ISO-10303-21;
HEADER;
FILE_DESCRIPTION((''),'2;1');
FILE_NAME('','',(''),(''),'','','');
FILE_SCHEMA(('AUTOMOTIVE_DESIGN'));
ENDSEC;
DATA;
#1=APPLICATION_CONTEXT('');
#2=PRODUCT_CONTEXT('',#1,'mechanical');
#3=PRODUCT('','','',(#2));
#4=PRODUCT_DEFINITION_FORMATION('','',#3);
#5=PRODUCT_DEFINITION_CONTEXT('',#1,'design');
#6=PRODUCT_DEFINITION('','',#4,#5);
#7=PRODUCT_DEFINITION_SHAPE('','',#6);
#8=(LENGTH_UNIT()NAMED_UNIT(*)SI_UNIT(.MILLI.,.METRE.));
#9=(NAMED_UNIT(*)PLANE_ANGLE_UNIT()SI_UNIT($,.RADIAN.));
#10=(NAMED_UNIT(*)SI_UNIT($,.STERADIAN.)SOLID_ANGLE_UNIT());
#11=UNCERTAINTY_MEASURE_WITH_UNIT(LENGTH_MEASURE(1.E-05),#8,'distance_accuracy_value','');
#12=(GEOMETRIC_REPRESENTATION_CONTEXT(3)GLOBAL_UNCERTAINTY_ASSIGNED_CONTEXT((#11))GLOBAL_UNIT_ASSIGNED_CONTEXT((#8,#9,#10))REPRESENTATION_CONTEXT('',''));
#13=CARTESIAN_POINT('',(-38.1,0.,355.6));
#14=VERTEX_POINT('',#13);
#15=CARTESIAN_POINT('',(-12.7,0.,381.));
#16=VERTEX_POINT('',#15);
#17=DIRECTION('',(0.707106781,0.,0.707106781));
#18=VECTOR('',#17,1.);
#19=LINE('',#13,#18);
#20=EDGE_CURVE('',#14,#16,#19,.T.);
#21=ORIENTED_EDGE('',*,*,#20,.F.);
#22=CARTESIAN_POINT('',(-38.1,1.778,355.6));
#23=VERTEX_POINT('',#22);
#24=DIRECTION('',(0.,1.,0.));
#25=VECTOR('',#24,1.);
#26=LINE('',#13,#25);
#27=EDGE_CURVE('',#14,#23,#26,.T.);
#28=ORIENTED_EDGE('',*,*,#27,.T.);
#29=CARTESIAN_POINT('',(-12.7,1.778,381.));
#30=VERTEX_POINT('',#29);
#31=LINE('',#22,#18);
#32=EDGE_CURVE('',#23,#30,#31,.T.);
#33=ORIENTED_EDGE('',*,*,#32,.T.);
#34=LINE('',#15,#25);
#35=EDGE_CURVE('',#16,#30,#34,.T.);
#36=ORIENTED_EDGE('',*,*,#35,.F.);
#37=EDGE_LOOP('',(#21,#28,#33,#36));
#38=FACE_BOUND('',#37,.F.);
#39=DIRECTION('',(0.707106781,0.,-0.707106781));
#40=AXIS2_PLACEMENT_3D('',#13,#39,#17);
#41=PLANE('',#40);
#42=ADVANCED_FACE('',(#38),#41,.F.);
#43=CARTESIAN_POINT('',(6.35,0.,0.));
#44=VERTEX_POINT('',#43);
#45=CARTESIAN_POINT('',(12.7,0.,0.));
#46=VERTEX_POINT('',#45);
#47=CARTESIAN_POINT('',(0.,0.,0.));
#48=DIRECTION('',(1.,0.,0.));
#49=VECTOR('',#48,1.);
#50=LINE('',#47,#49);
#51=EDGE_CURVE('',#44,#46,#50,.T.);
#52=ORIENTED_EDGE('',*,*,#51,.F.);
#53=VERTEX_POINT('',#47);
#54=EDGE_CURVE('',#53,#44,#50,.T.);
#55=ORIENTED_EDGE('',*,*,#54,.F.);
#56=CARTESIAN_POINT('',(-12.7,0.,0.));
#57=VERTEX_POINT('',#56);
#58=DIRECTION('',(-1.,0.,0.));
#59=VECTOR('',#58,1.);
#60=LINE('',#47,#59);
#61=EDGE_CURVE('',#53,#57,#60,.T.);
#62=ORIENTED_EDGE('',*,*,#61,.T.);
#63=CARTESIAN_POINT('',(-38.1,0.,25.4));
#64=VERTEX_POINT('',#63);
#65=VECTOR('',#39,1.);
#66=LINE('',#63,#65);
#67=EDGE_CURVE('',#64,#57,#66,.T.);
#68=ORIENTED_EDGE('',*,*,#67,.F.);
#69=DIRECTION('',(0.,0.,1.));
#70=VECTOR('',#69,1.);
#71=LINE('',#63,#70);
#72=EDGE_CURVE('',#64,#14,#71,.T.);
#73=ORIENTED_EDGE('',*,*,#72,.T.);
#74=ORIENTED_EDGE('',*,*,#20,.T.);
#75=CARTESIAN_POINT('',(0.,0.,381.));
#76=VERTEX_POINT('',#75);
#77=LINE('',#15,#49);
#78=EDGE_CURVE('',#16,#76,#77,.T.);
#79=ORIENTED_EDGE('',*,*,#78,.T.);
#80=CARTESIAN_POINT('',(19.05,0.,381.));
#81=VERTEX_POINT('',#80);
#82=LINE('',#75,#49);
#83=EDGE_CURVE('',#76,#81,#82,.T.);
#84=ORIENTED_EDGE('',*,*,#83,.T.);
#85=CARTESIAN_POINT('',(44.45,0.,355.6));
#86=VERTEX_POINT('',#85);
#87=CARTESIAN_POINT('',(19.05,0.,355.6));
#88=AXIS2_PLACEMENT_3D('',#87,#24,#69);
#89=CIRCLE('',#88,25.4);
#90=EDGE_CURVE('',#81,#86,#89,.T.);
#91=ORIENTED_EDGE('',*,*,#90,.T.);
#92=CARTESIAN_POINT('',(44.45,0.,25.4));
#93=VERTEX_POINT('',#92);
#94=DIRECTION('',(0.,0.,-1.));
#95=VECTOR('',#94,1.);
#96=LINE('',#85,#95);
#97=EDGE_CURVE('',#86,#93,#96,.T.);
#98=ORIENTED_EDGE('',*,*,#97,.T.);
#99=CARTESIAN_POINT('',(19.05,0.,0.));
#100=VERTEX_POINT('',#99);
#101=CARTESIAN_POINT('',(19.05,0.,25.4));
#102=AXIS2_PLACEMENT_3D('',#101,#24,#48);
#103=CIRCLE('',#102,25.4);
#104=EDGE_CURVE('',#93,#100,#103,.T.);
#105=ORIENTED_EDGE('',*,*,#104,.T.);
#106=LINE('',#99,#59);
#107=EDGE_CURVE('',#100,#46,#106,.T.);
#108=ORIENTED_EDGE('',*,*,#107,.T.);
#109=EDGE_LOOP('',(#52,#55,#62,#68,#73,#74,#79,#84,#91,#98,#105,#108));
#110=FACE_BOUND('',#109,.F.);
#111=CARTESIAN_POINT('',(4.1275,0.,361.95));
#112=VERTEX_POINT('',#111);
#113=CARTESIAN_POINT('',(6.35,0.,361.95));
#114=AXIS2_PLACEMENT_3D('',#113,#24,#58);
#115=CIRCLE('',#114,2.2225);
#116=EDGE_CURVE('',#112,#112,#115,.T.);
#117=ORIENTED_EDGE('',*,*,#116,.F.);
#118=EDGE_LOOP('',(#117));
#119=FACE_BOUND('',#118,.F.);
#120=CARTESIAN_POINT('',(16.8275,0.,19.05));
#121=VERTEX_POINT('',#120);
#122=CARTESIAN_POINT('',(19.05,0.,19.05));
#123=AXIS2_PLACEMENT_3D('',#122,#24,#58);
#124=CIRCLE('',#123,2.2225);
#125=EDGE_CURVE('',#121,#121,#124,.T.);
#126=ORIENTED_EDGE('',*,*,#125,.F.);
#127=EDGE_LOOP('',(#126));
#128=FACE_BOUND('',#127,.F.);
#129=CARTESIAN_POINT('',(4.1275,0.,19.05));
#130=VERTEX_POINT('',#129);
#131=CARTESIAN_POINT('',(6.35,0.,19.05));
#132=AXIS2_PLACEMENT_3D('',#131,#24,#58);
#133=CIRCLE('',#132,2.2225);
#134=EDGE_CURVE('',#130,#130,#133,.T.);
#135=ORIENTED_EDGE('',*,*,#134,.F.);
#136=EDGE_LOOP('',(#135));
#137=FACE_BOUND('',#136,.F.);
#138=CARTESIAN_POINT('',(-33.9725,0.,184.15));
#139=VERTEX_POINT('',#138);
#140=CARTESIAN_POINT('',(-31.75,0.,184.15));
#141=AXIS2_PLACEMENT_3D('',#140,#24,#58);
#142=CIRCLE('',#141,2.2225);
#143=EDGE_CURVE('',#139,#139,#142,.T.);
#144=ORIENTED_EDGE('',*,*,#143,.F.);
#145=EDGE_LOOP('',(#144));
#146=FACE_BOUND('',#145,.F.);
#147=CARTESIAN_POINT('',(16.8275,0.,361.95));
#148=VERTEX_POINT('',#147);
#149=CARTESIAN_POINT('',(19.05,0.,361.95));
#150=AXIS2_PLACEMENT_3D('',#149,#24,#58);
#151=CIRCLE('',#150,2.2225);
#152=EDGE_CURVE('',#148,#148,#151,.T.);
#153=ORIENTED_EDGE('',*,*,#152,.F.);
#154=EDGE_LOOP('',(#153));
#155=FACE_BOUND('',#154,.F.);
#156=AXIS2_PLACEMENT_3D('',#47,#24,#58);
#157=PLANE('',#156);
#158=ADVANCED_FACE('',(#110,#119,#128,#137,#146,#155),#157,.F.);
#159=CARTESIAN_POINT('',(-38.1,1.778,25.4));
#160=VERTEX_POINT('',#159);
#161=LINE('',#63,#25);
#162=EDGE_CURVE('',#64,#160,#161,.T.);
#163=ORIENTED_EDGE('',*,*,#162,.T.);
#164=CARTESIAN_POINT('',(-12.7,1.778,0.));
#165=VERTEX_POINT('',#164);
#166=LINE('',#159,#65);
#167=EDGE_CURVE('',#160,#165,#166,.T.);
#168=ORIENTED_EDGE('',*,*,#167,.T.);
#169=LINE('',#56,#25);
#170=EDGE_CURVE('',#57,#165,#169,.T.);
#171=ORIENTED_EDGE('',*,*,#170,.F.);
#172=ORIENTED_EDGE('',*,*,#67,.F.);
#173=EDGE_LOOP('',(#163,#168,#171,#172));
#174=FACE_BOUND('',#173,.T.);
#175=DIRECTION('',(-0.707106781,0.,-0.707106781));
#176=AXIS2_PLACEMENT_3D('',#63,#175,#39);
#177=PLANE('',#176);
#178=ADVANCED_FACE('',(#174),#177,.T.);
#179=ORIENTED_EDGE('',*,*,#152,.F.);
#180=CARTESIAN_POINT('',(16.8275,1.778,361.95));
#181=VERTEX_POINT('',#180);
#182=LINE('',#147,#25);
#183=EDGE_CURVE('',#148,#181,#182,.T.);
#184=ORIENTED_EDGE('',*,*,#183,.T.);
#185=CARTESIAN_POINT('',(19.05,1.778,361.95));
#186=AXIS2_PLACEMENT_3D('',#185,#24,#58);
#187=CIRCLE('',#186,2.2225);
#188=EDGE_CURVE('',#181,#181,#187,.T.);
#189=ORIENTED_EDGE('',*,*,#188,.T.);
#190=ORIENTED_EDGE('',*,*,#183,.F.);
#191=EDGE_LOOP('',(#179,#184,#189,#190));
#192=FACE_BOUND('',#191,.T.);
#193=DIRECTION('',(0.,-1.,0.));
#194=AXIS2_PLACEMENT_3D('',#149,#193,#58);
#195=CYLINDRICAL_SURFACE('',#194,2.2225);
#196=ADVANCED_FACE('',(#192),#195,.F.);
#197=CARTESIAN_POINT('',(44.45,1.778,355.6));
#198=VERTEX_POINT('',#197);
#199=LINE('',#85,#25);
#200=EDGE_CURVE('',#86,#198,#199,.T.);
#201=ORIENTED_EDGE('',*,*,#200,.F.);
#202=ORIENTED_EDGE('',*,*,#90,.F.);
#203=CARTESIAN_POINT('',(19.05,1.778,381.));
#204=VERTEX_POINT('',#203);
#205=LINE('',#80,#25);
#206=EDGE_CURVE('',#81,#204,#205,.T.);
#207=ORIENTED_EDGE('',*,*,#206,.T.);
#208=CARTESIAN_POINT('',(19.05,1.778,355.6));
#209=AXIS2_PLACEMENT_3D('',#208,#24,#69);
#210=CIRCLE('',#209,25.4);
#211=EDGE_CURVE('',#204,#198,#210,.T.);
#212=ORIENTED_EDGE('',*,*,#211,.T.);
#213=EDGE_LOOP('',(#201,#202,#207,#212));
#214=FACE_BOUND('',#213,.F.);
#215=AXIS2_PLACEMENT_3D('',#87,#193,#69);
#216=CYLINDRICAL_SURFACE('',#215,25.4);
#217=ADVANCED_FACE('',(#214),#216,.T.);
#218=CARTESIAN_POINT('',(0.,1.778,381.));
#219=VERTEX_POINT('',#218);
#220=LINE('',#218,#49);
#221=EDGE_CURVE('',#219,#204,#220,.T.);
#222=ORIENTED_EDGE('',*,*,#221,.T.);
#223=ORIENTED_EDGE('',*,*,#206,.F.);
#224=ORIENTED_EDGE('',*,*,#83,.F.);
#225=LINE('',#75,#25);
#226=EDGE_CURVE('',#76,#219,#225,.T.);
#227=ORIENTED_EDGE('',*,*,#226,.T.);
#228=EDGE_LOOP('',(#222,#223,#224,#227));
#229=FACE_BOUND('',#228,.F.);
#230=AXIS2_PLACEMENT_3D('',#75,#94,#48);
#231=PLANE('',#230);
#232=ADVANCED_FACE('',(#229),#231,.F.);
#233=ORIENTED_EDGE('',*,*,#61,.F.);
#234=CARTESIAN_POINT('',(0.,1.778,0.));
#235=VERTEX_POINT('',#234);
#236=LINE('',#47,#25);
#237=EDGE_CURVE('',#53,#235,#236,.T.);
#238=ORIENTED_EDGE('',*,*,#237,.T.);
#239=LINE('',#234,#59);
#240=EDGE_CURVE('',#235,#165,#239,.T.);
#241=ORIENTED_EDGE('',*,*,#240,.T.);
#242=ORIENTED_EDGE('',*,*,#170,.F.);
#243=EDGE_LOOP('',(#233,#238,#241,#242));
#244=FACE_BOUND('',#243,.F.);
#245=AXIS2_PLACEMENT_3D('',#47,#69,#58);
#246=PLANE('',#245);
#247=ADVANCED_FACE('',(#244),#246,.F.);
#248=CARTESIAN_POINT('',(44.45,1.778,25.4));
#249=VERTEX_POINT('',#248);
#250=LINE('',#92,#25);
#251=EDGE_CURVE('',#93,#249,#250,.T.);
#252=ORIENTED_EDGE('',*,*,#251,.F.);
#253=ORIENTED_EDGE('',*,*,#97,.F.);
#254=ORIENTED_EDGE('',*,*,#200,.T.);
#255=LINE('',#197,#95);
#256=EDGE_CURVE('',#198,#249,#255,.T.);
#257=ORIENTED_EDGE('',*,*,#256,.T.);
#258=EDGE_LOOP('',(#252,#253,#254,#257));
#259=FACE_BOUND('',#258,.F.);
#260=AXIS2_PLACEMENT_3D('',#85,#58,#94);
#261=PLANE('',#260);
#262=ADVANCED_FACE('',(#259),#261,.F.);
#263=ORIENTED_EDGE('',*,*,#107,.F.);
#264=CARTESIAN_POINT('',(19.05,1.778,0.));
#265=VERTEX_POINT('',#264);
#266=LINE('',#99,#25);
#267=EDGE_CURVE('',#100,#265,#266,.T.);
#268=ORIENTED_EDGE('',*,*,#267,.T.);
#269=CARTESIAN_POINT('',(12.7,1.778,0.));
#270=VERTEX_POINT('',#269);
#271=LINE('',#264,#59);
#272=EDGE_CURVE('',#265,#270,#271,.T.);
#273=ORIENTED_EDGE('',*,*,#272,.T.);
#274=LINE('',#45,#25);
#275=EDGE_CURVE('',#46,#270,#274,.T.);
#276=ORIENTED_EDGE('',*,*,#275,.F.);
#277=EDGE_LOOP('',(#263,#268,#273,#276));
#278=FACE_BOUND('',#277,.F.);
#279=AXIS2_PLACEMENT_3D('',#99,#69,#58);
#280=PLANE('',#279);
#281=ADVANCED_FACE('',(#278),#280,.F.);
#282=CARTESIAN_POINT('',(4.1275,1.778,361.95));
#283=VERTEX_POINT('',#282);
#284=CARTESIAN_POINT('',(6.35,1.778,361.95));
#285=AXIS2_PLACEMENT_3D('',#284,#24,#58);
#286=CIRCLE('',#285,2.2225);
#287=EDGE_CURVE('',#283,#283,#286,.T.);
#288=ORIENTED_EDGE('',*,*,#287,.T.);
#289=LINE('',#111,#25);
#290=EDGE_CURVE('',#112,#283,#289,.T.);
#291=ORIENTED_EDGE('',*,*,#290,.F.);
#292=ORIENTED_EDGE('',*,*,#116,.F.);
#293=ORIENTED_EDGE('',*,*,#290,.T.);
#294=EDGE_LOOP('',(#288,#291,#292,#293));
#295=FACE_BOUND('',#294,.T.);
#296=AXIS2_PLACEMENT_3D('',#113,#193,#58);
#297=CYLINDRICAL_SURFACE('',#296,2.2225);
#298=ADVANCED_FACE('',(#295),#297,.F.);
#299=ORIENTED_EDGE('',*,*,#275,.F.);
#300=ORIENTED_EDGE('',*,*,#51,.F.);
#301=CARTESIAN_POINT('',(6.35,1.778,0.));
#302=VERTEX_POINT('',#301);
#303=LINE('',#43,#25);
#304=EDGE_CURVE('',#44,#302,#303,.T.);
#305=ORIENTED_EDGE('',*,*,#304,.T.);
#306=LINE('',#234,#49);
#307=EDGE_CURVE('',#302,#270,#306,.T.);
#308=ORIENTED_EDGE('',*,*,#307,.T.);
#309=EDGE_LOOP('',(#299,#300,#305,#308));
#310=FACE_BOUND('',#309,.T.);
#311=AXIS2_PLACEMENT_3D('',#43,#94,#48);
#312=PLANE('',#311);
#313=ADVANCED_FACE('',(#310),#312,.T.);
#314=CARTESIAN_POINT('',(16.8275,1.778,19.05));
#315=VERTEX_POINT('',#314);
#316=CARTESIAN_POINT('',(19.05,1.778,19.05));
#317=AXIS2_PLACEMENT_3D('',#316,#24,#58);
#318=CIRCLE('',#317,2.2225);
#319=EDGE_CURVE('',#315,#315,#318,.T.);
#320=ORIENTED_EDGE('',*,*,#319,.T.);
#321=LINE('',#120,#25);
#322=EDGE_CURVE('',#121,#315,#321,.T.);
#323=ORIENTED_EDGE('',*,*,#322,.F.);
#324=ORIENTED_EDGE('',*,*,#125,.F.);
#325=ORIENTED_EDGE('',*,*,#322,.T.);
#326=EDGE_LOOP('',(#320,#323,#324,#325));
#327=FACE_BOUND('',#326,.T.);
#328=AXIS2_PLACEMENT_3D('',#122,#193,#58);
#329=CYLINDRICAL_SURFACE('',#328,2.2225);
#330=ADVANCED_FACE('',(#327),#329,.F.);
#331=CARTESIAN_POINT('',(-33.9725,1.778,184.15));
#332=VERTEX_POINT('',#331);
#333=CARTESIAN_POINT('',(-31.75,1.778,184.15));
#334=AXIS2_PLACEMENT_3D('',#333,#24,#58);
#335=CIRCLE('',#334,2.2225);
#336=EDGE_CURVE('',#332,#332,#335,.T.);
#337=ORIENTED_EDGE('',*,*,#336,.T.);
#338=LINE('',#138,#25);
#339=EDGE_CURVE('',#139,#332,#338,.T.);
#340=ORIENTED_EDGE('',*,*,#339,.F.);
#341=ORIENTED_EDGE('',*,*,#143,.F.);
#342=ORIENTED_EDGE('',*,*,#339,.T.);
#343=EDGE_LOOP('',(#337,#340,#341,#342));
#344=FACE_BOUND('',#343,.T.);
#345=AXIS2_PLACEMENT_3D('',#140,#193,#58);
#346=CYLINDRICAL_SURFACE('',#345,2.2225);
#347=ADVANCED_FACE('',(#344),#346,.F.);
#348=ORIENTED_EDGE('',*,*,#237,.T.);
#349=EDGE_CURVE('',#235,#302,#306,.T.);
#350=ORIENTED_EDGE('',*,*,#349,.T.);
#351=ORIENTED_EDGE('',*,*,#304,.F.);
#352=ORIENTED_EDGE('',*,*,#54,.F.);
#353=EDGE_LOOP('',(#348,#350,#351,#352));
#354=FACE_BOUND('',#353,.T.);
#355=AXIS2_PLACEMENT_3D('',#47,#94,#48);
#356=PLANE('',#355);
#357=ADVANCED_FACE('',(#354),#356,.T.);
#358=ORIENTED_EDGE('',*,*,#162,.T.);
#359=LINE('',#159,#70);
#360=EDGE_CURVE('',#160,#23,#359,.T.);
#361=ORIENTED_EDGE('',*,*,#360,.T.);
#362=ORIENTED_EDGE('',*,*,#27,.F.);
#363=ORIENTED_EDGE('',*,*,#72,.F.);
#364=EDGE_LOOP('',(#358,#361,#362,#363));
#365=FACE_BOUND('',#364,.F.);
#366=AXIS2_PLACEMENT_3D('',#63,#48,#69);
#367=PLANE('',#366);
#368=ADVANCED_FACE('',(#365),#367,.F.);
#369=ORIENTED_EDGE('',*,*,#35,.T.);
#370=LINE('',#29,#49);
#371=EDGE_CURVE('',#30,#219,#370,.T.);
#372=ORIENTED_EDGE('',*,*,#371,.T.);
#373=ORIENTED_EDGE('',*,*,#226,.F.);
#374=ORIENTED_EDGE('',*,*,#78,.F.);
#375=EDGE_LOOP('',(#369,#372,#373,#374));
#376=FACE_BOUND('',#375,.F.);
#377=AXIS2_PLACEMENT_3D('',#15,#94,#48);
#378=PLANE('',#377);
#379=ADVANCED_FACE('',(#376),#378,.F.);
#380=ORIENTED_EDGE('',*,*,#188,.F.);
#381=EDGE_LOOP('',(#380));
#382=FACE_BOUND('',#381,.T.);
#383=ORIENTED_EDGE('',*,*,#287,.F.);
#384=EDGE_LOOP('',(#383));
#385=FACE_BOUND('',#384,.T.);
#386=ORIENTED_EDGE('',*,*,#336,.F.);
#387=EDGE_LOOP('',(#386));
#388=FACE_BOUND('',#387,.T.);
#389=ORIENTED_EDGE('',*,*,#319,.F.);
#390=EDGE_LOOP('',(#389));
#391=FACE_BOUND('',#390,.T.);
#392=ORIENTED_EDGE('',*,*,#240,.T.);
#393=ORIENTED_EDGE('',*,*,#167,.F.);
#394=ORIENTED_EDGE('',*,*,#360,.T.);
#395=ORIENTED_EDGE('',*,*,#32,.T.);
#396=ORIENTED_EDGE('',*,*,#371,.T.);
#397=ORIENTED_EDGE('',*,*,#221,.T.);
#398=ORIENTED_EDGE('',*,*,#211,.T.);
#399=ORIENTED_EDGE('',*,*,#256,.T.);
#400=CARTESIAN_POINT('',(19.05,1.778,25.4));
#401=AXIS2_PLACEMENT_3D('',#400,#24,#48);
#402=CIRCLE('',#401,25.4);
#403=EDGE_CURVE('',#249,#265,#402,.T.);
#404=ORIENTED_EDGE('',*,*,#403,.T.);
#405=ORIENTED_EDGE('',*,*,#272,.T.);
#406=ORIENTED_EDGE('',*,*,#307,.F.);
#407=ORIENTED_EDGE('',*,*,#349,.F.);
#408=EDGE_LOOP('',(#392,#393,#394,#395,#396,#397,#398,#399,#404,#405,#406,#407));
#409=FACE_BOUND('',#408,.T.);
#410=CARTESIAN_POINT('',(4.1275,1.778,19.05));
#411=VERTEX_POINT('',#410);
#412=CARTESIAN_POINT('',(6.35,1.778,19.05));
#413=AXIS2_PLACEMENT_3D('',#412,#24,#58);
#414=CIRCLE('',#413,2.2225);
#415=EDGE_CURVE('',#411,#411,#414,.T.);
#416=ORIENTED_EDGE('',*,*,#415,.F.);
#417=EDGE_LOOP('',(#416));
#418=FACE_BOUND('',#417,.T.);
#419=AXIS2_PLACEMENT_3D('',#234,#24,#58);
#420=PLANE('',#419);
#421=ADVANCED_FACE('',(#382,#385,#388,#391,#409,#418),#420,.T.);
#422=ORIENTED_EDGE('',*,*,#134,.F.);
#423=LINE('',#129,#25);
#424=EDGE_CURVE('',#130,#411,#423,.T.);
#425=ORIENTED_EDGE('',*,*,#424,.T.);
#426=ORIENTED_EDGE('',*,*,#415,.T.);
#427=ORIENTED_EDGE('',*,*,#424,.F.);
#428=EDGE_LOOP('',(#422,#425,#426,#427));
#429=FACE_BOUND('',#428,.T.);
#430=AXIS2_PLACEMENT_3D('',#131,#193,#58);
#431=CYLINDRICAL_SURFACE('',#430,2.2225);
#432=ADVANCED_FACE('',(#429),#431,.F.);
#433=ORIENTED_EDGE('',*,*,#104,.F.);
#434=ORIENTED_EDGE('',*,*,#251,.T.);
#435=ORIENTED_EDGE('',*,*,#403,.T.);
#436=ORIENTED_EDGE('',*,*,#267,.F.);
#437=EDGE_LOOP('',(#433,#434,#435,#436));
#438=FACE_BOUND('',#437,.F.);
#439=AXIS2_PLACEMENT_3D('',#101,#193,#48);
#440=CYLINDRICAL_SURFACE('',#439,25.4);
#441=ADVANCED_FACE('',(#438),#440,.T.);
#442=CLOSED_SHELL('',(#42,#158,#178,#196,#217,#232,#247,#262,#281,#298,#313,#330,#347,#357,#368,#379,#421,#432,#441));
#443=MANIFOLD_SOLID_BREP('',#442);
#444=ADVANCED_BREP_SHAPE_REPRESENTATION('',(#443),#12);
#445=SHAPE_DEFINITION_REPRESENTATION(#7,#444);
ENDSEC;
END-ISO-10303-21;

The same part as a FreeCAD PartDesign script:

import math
import FreeCAD as App
import Part
import Sketcher

V = App.Vector
Q = App.Units.Quantity

doc = App.newDocument("Part")
body = doc.addObject("PartDesign::Body", "Body")

# Sketch on XZ plane
sketch1 = body.newObject("Sketcher::SketchObject", "Sketch")
sketch1.AttachmentSupport = (doc.getObject("XZ_Plane"), [""])
sketch1.MapMode = "FlatFace"
sketch1.addGeometry([
    Part.LineSegment(V(19.1, 0, 0), V(-12.7, 0, 0)),  # 0
    Part.LineSegment(V(-12.7, 0, 0), V(-38.1, 25.4, 0)),  # 1
    Part.LineSegment(V(-38.1, 25.4, 0), V(-38.1, 355.6, 0)),  # 2
    Part.LineSegment(V(-38.1, 355.6, 0), V(-12.7, 381, 0)),  # 3
    Part.LineSegment(V(-12.7, 381, 0), V(19.1, 381, 0)),  # 4
    Part.ArcOfCircle(Part.Circle(V(19.1, 355.6, 0), V(0, 0, 1), 25.4), math.radians(0), math.radians(90)),  # 5
    Part.LineSegment(V(44.5, 355.6, 0), V(44.5, 25.4, 0)),  # 6
    Part.ArcOfCircle(Part.Circle(V(19.1, 25.4, 0), V(0, 0, 1), 25.4), math.radians(-90), math.radians(0)),  # 7
    Part.Circle(V(19.1, 19.1, 0), V(0, 0, 1), 2.2),  # 8
    Part.Circle(V(6.3, 19.1, 0), V(0, 0, 1), 2.2),  # 9
    Part.Circle(V(-31.8, 184.2, 0), V(0, 0, 1), 2.2),  # 10
    Part.Circle(V(19.1, 361.9, 0), V(0, 0, 1), 2.2),  # 11
    Part.Circle(V(6.3, 361.9, 0), V(0, 0, 1), 2.2),  # 12
], False)
sketch1.addConstraint([
    Sketcher.Constraint("Coincident", 0, 2, 1, 1),
    Sketcher.Constraint("Coincident", 1, 2, 2, 1),
    Sketcher.Constraint("Coincident", 2, 2, 3, 1),
    Sketcher.Constraint("Coincident", 3, 2, 4, 1),
    Sketcher.Constraint("Tangent", 4, 2, 5, 2),
    Sketcher.Constraint("Tangent", 5, 1, 6, 1),
    Sketcher.Constraint("Tangent", 6, 2, 7, 2),
    Sketcher.Constraint("Tangent", 7, 1, 0, 1),
    Sketcher.Constraint("Horizontal", 0),
    Sketcher.Constraint("Vertical", 2),
    Sketcher.Constraint("Horizontal", 4),
    Sketcher.Constraint("Vertical", 6),
    Sketcher.Constraint("Equal", 5, 7),
    Sketcher.Constraint("Equal", 8, 9),
    Sketcher.Constraint("Equal", 9, 10),
    Sketcher.Constraint("Equal", 10, 11),
    Sketcher.Constraint("Equal", 11, 12),
    Sketcher.Constraint("PointOnObject", 0, 2, -1),
    Sketcher.Constraint("Perpendicular", 1, 3),
    Sketcher.Constraint("Horizontal", 8, 3, 9, 3),
    Sketcher.Constraint("Horizontal", 11, 3, 12, 3),
    Sketcher.Constraint("Horizontal", 7, 3, 1, 2),
    Sketcher.Constraint("Horizontal", 5, 3, 2, 2),
    Sketcher.Constraint("Vertical", 7, 3, 8, 3),
    Sketcher.Constraint("Vertical", 8, 3, 11, 3),
    Sketcher.Constraint("Vertical", 9, 3, 12, 3),
    Sketcher.Constraint("Vertical", 0, 2, 3, 2),
    Sketcher.Constraint("Radius", 5, Q("1 in")),
    Sketcher.Constraint("Diameter", 8, Q("0.175 in")),
    Sketcher.Constraint("DistanceY", -1, 1, 3, 2, Q("15 in")),
    Sketcher.Constraint("DistanceX", 1, 2, -1, 1, Q("1.5 in")),
    Sketcher.Constraint("DistanceX", 10, 3, 9, 3, Q("1.5 in")),
    Sketcher.Constraint("DistanceX", 12, 3, 5, 1, Q("1.5 in")),
    Sketcher.Constraint("DistanceX", -1, 1, 5, 1, Q("1.75 in")),
    Sketcher.Constraint("DistanceY", 10, 3, 11, 3, Q("7 in")),
    Sketcher.Constraint("DistanceY", 9, 3, 10, 3, Q("6.5 in")),
    Sketcher.Constraint("DistanceY", -1, 1, 8, 3, Q("0.75 in")),
])
pad1 = body.newObject("PartDesign::Pad", "Pad")
pad1.Profile = sketch1
pad1.Length = Q("0.07 in")
pad1.Reversed = True

doc.recompute()
